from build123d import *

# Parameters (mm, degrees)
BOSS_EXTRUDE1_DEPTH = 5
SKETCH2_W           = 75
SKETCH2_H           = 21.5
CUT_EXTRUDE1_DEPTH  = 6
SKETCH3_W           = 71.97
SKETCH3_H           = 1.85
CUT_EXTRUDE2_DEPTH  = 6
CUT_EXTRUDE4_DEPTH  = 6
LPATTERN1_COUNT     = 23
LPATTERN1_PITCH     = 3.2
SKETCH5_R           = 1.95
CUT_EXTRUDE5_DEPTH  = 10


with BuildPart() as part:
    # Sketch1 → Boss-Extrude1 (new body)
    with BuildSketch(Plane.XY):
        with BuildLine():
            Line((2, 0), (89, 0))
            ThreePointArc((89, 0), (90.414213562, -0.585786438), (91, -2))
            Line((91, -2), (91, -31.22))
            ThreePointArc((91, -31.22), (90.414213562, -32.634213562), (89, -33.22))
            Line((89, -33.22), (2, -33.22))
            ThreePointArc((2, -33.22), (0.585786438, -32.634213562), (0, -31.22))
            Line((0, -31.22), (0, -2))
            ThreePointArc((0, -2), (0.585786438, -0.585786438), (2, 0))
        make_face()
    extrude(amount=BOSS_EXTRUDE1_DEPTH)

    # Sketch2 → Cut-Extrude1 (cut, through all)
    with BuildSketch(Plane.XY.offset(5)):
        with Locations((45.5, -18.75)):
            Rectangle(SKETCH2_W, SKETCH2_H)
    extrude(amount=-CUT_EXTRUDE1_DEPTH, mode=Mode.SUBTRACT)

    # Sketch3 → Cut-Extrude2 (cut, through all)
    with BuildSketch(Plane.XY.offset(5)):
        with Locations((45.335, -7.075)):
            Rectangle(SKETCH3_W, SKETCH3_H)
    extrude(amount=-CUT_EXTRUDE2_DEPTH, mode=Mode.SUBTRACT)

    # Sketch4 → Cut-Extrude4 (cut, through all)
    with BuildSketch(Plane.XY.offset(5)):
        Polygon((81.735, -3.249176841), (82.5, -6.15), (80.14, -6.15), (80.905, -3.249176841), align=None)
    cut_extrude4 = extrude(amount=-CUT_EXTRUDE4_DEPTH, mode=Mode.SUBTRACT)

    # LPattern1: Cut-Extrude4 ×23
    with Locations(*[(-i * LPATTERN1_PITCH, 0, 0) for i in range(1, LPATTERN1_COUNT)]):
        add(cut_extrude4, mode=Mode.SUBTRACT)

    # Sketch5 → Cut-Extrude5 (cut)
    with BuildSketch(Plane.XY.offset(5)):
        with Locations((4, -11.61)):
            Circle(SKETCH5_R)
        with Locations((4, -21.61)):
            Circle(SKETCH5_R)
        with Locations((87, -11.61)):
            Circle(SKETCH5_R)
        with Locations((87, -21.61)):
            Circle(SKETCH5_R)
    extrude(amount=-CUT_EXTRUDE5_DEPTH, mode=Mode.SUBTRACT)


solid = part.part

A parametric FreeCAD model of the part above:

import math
import FreeCAD as App
import Part
import Sketcher

V = App.Vector

doc = App.newDocument("Part")
body = doc.addObject("PartDesign::Body", "Body")

# Sketch on XY plane
sketch1 = doc.addObject("Sketcher::SketchObject", "Sketch")
body.addObject(sketch1)
sketch1.AttachmentSupport = (doc.XY_Plane, [""])
sketch1.MapMode = "FlatFace"
sketch1.addGeometry([
    Part.LineSegment(V(89, 0, 0), V(2, 0, 0)),  # 0
    Part.ArcOfCircle(Part.Circle(V(2, -2, 0), V(0, 0, 1), 2), math.radians(90), math.radians(180)),  # 1
    Part.LineSegment(V(0, -2, 0), V(0, -31.22, 0)),  # 2
    Part.ArcOfCircle(Part.Circle(V(2, -31.22, 0), V(0, 0, 1), 2), math.radians(-180), math.radians(-90)),  # 3
    Part.LineSegment(V(2, -33.22, 0), V(89, -33.22, 0)),  # 4
    Part.ArcOfCircle(Part.Circle(V(89, -31.22, 0), V(0, 0, 1), 2), math.radians(-90), math.radians(0)),  # 5
    Part.LineSegment(V(91, -31.22, 0), V(91, -2, 0)),  # 6
    Part.ArcOfCircle(Part.Circle(V(89, -2, 0), V(0, 0, 1), 2), math.radians(0), math.radians(90)),  # 7
], False)
sketch1.addConstraint([
    Sketcher.Constraint("Tangent", 0, 2, 1, 1),
    Sketcher.Constraint("Tangent", 1, 2, 2, 1),
    Sketcher.Constraint("Tangent", 2, 2, 3, 1),
    Sketcher.Constraint("Tangent", 3, 2, 4, 1),
    Sketcher.Constraint("Tangent", 4, 2, 5, 1),
    Sketcher.Constraint("Tangent", 5, 2, 6, 1),
    Sketcher.Constraint("Tangent", 6, 2, 7, 1),
    Sketcher.Constraint("Tangent", 7, 2, 0, 1),
    Sketcher.Constraint("Horizontal", 0),
    Sketcher.Constraint("Vertical", 2),
    Sketcher.Constraint("Horizontal", 4),
    Sketcher.Constraint("Vertical", 6),
    Sketcher.Constraint("Equal", 1, 3),
    Sketcher.Constraint("Equal", 3, 5),
    Sketcher.Constraint("Equal", 5, 7),
    Sketcher.Constraint("PointOnObject", 0, 2, -1),
    Sketcher.Constraint("PointOnObject", 1, 2, -2),
    Sketcher.Constraint("Radius", 1, 2.0),
    Sketcher.Constraint("DistanceX", 0, 2, 0, 1, 87.0),
    Sketcher.Constraint("DistanceY", 2, 2, 2, 1, 29.22),
])
pad1 = doc.addObject("PartDesign::Pad", "Pad")
body.addObject(pad1)
pad1.Profile = sketch1
pad1.Length = 5

# Sketch on XY plane
sketch2 = doc.addObject("Sketcher::SketchObject", "Sketch001")
body.addObject(sketch2)
sketch2.AttachmentSupport = (doc.XY_Plane, [""])
sketch2.MapMode = "FlatFace"
sketch2.AttachmentOffset = App.Placement(V(0, 0, 5), App.Rotation())
sketch2.addGeometry([
    Part.LineSegment(V(8, -8, 0), V(8, -29.5, 0)),
    Part.LineSegment(V(8, -29.5, 0), V(83, -29.5, 0)),
    Part.LineSegment(V(83, -29.5, 0), V(83, -8, 0)),
    Part.LineSegment(V(83, -8, 0), V(8, -8, 0)),
], False)
sketch2.addConstraint([
    Sketcher.Constraint("Coincident", 0, 2, 1, 1),
    Sketcher.Constraint("Coincident", 1, 2, 2, 1),
    Sketcher.Constraint("Coincident", 2, 2, 3, 1),
    Sketcher.Constraint("Coincident", 3, 2, 0, 1),
    Sketcher.Constraint("Vertical", 0),
    Sketcher.Constraint("Horizontal", 1),
    Sketcher.Constraint("Vertical", 2),
    Sketcher.Constraint("Horizontal", 3),
    Sketcher.Constraint("DistanceX", 1, 1, 1, 2, 75.0),
    Sketcher.Constraint("DistanceY", 0, 2, 0, 1, 21.5),
    Sketcher.Constraint("DistanceX", -1, 1, 0, 2, 8.0),
    Sketcher.Constraint("DistanceY", 2, 2, -1, 1, 8.0),
])
pocket1 = doc.addObject("PartDesign::Pocket", "Pocket")
body.addObject(pocket1)
pocket1.Profile = sketch2
pocket1.Type = "ThroughAll"

# Sketch on XY plane
sketch3 = doc.addObject("Sketcher::SketchObject", "Sketch002")
body.addObject(sketch3)
sketch3.AttachmentSupport = (doc.XY_Plane, [""])
sketch3.MapMode = "FlatFace"
sketch3.AttachmentOffset = App.Placement(V(0, 0, 5), App.Rotation())
sketch3.addGeometry([
    Part.LineSegment(V(9.35, -6.15, 0), V(9.35, -8, 0)),
    Part.LineSegment(V(9.35, -8, 0), V(81.32, -8, 0)),
    Part.LineSegment(V(81.32, -8, 0), V(81.32, -6.15, 0)),
    Part.LineSegment(V(81.32, -6.15, 0), V(9.35, -6.15, 0)),
], False)
sketch3.addConstraint([
    Sketcher.Constraint("Coincident", 0, 2, 1, 1),
    Sketcher.Constraint("Coincident", 1, 2, 2, 1),
    Sketcher.Constraint("Coincident", 2, 2, 3, 1),
    Sketcher.Constraint("Coincident", 3, 2, 0, 1),
    Sketcher.Constraint("Vertical", 0),
    Sketcher.Constraint("Horizontal", 1),
    Sketcher.Constraint("Vertical", 2),
    Sketcher.Constraint("Horizontal", 3),
    Sketcher.Constraint("DistanceY", 0, 2, -1, 1, 8.0),
    Sketcher.Constraint("DistanceX", 1, 1, 1, 2, 71.97),
    Sketcher.Constraint("DistanceY", 0, 2, 0, 1, 1.85),
    Sketcher.Constraint("DistanceX", -1, 1, 0, 2, 9.35),
])
pocket2 = doc.addObject("PartDesign::Pocket", "Pocket001")
body.addObject(pocket2)
pocket2.Profile = sketch3
pocket2.Type = "ThroughAll"

# Sketch on XY plane
sketch4 = doc.addObject("Sketcher::SketchObject", "Sketch003")
body.addObject(sketch4)
sketch4.AttachmentSupport = (doc.XY_Plane, [""])
sketch4.MapMode = "FlatFace"
sketch4.AttachmentOffset = App.Placement(V(0, 0, 5), App.Rotation())
sketch4.addGeometry([
    Part.LineSegment(V(82.5, -6.15, 0), V(81.735, -3.249177, 0)),
    Part.LineSegment(V(81.735, -3.249177, 0), V(80.905, -3.249177, 0)),
    Part.LineSegment(V(80.905, -3.249177, 0), V(80.14, -6.15, 0)),
    Part.LineSegment(V(80.14, -6.15, 0), V(82.5, -6.15, 0)),
], False)
sketch4.addConstraint([
    Sketcher.Constraint("Coincident", 0, 2, 1, 1),
    Sketcher.Constraint("Coincident", 1, 2, 2, 1),
    Sketcher.Constraint("Coincident", 2, 2, 3, 1),
    Sketcher.Constraint("Coincident", 3, 2, 0, 1),
    Sketcher.Constraint("Horizontal", 1),
    Sketcher.Constraint("Horizontal", 3),
    Sketcher.Constraint("Equal", 0, 2),
    Sketcher.Constraint("Distance", 0, 3.0),
    Sketcher.Constraint("DistanceX", 1, 2, 1, 1, 0.83),
    Sketcher.Constraint("DistanceX", 3, 1, 3, 2, 2.36),
    Sketcher.Constraint("DistanceX", -1, 1, 3, 2, 82.5),
    Sketcher.Constraint("DistanceY", 2, 2, -1, 1, 6.15),
])
pocket3 = doc.addObject("PartDesign::Pocket", "Pocket002")
body.addObject(pocket3)
pocket3.Profile = sketch4
pocket3.Type = "ThroughAll"
doc.recompute()

linearpattern = doc.addObject("PartDesign::LinearPattern", "LinearPattern")
body.addObject(linearpattern)
linearpattern.Originals = [pocket3]
linearpattern.Direction = (doc.X_Axis, [""])
linearpattern.Mode = "offset"
linearpattern.Offset = 3.2
linearpattern.Occurrences = 23
linearpattern.Reversed = True
body.Tip = linearpattern

# Sketch on XY plane
sketch5 = doc.addObject("Sketcher::SketchObject", "Sketch004")
body.addObject(sketch5)
sketch5.AttachmentSupport = (doc.XY_Plane, [""])
sketch5.MapMode = "FlatFace"
sketch5.AttachmentOffset = App.Placement(V(0, 0, 5), App.Rotation())
sketch5.addGeometry([
    Part.Circle(V(4, -11.61, 0), V(0, 0, 1), 1.95),
    Part.Circle(V(4, -21.61, 0), V(0, 0, 1), 1.95),
    Part.Circle(V(87, -11.61, 0), V(0, 0, 1), 1.95),
    Part.Circle(V(87, -21.61, 0), V(0, 0, 1), 1.95),
], False)
sketch5.addConstraint([
    Sketcher.Constraint("Equal", 0, 1),
    Sketcher.Constraint("Equal", 1, 2),
    Sketcher.Constraint("Equal", 2, 3),
    Sketcher.Constraint("Horizontal", 0, 3, 2, 3),
    Sketcher.Constraint("Horizontal", 1, 3, 3, 3),
    Sketcher.Constraint("Vertical", 0, 3, 1, 3),
    Sketcher.Constraint("Vertical", 2, 3, 3, 3),
    Sketcher.Constraint("Diameter", 0, 3.9),
    Sketcher.Constraint("DistanceX", -1, 1, 0, 3, 4.0),
    Sketcher.Constraint("DistanceX", -1, 1, 2, 3, 87.0),
    Sketcher.Constraint("DistanceY", 1, 3, 0, 3, 10.0),
    Sketcher.Constraint("DistanceY", 0, 3, -1, 1, 11.61),
])
pocket4 = doc.addObject("PartDesign::Pocket", "Pocket003")
body.addObject(pocket4)
pocket4.Profile = sketch5
pocket4.Length = 10

doc.recompute()
